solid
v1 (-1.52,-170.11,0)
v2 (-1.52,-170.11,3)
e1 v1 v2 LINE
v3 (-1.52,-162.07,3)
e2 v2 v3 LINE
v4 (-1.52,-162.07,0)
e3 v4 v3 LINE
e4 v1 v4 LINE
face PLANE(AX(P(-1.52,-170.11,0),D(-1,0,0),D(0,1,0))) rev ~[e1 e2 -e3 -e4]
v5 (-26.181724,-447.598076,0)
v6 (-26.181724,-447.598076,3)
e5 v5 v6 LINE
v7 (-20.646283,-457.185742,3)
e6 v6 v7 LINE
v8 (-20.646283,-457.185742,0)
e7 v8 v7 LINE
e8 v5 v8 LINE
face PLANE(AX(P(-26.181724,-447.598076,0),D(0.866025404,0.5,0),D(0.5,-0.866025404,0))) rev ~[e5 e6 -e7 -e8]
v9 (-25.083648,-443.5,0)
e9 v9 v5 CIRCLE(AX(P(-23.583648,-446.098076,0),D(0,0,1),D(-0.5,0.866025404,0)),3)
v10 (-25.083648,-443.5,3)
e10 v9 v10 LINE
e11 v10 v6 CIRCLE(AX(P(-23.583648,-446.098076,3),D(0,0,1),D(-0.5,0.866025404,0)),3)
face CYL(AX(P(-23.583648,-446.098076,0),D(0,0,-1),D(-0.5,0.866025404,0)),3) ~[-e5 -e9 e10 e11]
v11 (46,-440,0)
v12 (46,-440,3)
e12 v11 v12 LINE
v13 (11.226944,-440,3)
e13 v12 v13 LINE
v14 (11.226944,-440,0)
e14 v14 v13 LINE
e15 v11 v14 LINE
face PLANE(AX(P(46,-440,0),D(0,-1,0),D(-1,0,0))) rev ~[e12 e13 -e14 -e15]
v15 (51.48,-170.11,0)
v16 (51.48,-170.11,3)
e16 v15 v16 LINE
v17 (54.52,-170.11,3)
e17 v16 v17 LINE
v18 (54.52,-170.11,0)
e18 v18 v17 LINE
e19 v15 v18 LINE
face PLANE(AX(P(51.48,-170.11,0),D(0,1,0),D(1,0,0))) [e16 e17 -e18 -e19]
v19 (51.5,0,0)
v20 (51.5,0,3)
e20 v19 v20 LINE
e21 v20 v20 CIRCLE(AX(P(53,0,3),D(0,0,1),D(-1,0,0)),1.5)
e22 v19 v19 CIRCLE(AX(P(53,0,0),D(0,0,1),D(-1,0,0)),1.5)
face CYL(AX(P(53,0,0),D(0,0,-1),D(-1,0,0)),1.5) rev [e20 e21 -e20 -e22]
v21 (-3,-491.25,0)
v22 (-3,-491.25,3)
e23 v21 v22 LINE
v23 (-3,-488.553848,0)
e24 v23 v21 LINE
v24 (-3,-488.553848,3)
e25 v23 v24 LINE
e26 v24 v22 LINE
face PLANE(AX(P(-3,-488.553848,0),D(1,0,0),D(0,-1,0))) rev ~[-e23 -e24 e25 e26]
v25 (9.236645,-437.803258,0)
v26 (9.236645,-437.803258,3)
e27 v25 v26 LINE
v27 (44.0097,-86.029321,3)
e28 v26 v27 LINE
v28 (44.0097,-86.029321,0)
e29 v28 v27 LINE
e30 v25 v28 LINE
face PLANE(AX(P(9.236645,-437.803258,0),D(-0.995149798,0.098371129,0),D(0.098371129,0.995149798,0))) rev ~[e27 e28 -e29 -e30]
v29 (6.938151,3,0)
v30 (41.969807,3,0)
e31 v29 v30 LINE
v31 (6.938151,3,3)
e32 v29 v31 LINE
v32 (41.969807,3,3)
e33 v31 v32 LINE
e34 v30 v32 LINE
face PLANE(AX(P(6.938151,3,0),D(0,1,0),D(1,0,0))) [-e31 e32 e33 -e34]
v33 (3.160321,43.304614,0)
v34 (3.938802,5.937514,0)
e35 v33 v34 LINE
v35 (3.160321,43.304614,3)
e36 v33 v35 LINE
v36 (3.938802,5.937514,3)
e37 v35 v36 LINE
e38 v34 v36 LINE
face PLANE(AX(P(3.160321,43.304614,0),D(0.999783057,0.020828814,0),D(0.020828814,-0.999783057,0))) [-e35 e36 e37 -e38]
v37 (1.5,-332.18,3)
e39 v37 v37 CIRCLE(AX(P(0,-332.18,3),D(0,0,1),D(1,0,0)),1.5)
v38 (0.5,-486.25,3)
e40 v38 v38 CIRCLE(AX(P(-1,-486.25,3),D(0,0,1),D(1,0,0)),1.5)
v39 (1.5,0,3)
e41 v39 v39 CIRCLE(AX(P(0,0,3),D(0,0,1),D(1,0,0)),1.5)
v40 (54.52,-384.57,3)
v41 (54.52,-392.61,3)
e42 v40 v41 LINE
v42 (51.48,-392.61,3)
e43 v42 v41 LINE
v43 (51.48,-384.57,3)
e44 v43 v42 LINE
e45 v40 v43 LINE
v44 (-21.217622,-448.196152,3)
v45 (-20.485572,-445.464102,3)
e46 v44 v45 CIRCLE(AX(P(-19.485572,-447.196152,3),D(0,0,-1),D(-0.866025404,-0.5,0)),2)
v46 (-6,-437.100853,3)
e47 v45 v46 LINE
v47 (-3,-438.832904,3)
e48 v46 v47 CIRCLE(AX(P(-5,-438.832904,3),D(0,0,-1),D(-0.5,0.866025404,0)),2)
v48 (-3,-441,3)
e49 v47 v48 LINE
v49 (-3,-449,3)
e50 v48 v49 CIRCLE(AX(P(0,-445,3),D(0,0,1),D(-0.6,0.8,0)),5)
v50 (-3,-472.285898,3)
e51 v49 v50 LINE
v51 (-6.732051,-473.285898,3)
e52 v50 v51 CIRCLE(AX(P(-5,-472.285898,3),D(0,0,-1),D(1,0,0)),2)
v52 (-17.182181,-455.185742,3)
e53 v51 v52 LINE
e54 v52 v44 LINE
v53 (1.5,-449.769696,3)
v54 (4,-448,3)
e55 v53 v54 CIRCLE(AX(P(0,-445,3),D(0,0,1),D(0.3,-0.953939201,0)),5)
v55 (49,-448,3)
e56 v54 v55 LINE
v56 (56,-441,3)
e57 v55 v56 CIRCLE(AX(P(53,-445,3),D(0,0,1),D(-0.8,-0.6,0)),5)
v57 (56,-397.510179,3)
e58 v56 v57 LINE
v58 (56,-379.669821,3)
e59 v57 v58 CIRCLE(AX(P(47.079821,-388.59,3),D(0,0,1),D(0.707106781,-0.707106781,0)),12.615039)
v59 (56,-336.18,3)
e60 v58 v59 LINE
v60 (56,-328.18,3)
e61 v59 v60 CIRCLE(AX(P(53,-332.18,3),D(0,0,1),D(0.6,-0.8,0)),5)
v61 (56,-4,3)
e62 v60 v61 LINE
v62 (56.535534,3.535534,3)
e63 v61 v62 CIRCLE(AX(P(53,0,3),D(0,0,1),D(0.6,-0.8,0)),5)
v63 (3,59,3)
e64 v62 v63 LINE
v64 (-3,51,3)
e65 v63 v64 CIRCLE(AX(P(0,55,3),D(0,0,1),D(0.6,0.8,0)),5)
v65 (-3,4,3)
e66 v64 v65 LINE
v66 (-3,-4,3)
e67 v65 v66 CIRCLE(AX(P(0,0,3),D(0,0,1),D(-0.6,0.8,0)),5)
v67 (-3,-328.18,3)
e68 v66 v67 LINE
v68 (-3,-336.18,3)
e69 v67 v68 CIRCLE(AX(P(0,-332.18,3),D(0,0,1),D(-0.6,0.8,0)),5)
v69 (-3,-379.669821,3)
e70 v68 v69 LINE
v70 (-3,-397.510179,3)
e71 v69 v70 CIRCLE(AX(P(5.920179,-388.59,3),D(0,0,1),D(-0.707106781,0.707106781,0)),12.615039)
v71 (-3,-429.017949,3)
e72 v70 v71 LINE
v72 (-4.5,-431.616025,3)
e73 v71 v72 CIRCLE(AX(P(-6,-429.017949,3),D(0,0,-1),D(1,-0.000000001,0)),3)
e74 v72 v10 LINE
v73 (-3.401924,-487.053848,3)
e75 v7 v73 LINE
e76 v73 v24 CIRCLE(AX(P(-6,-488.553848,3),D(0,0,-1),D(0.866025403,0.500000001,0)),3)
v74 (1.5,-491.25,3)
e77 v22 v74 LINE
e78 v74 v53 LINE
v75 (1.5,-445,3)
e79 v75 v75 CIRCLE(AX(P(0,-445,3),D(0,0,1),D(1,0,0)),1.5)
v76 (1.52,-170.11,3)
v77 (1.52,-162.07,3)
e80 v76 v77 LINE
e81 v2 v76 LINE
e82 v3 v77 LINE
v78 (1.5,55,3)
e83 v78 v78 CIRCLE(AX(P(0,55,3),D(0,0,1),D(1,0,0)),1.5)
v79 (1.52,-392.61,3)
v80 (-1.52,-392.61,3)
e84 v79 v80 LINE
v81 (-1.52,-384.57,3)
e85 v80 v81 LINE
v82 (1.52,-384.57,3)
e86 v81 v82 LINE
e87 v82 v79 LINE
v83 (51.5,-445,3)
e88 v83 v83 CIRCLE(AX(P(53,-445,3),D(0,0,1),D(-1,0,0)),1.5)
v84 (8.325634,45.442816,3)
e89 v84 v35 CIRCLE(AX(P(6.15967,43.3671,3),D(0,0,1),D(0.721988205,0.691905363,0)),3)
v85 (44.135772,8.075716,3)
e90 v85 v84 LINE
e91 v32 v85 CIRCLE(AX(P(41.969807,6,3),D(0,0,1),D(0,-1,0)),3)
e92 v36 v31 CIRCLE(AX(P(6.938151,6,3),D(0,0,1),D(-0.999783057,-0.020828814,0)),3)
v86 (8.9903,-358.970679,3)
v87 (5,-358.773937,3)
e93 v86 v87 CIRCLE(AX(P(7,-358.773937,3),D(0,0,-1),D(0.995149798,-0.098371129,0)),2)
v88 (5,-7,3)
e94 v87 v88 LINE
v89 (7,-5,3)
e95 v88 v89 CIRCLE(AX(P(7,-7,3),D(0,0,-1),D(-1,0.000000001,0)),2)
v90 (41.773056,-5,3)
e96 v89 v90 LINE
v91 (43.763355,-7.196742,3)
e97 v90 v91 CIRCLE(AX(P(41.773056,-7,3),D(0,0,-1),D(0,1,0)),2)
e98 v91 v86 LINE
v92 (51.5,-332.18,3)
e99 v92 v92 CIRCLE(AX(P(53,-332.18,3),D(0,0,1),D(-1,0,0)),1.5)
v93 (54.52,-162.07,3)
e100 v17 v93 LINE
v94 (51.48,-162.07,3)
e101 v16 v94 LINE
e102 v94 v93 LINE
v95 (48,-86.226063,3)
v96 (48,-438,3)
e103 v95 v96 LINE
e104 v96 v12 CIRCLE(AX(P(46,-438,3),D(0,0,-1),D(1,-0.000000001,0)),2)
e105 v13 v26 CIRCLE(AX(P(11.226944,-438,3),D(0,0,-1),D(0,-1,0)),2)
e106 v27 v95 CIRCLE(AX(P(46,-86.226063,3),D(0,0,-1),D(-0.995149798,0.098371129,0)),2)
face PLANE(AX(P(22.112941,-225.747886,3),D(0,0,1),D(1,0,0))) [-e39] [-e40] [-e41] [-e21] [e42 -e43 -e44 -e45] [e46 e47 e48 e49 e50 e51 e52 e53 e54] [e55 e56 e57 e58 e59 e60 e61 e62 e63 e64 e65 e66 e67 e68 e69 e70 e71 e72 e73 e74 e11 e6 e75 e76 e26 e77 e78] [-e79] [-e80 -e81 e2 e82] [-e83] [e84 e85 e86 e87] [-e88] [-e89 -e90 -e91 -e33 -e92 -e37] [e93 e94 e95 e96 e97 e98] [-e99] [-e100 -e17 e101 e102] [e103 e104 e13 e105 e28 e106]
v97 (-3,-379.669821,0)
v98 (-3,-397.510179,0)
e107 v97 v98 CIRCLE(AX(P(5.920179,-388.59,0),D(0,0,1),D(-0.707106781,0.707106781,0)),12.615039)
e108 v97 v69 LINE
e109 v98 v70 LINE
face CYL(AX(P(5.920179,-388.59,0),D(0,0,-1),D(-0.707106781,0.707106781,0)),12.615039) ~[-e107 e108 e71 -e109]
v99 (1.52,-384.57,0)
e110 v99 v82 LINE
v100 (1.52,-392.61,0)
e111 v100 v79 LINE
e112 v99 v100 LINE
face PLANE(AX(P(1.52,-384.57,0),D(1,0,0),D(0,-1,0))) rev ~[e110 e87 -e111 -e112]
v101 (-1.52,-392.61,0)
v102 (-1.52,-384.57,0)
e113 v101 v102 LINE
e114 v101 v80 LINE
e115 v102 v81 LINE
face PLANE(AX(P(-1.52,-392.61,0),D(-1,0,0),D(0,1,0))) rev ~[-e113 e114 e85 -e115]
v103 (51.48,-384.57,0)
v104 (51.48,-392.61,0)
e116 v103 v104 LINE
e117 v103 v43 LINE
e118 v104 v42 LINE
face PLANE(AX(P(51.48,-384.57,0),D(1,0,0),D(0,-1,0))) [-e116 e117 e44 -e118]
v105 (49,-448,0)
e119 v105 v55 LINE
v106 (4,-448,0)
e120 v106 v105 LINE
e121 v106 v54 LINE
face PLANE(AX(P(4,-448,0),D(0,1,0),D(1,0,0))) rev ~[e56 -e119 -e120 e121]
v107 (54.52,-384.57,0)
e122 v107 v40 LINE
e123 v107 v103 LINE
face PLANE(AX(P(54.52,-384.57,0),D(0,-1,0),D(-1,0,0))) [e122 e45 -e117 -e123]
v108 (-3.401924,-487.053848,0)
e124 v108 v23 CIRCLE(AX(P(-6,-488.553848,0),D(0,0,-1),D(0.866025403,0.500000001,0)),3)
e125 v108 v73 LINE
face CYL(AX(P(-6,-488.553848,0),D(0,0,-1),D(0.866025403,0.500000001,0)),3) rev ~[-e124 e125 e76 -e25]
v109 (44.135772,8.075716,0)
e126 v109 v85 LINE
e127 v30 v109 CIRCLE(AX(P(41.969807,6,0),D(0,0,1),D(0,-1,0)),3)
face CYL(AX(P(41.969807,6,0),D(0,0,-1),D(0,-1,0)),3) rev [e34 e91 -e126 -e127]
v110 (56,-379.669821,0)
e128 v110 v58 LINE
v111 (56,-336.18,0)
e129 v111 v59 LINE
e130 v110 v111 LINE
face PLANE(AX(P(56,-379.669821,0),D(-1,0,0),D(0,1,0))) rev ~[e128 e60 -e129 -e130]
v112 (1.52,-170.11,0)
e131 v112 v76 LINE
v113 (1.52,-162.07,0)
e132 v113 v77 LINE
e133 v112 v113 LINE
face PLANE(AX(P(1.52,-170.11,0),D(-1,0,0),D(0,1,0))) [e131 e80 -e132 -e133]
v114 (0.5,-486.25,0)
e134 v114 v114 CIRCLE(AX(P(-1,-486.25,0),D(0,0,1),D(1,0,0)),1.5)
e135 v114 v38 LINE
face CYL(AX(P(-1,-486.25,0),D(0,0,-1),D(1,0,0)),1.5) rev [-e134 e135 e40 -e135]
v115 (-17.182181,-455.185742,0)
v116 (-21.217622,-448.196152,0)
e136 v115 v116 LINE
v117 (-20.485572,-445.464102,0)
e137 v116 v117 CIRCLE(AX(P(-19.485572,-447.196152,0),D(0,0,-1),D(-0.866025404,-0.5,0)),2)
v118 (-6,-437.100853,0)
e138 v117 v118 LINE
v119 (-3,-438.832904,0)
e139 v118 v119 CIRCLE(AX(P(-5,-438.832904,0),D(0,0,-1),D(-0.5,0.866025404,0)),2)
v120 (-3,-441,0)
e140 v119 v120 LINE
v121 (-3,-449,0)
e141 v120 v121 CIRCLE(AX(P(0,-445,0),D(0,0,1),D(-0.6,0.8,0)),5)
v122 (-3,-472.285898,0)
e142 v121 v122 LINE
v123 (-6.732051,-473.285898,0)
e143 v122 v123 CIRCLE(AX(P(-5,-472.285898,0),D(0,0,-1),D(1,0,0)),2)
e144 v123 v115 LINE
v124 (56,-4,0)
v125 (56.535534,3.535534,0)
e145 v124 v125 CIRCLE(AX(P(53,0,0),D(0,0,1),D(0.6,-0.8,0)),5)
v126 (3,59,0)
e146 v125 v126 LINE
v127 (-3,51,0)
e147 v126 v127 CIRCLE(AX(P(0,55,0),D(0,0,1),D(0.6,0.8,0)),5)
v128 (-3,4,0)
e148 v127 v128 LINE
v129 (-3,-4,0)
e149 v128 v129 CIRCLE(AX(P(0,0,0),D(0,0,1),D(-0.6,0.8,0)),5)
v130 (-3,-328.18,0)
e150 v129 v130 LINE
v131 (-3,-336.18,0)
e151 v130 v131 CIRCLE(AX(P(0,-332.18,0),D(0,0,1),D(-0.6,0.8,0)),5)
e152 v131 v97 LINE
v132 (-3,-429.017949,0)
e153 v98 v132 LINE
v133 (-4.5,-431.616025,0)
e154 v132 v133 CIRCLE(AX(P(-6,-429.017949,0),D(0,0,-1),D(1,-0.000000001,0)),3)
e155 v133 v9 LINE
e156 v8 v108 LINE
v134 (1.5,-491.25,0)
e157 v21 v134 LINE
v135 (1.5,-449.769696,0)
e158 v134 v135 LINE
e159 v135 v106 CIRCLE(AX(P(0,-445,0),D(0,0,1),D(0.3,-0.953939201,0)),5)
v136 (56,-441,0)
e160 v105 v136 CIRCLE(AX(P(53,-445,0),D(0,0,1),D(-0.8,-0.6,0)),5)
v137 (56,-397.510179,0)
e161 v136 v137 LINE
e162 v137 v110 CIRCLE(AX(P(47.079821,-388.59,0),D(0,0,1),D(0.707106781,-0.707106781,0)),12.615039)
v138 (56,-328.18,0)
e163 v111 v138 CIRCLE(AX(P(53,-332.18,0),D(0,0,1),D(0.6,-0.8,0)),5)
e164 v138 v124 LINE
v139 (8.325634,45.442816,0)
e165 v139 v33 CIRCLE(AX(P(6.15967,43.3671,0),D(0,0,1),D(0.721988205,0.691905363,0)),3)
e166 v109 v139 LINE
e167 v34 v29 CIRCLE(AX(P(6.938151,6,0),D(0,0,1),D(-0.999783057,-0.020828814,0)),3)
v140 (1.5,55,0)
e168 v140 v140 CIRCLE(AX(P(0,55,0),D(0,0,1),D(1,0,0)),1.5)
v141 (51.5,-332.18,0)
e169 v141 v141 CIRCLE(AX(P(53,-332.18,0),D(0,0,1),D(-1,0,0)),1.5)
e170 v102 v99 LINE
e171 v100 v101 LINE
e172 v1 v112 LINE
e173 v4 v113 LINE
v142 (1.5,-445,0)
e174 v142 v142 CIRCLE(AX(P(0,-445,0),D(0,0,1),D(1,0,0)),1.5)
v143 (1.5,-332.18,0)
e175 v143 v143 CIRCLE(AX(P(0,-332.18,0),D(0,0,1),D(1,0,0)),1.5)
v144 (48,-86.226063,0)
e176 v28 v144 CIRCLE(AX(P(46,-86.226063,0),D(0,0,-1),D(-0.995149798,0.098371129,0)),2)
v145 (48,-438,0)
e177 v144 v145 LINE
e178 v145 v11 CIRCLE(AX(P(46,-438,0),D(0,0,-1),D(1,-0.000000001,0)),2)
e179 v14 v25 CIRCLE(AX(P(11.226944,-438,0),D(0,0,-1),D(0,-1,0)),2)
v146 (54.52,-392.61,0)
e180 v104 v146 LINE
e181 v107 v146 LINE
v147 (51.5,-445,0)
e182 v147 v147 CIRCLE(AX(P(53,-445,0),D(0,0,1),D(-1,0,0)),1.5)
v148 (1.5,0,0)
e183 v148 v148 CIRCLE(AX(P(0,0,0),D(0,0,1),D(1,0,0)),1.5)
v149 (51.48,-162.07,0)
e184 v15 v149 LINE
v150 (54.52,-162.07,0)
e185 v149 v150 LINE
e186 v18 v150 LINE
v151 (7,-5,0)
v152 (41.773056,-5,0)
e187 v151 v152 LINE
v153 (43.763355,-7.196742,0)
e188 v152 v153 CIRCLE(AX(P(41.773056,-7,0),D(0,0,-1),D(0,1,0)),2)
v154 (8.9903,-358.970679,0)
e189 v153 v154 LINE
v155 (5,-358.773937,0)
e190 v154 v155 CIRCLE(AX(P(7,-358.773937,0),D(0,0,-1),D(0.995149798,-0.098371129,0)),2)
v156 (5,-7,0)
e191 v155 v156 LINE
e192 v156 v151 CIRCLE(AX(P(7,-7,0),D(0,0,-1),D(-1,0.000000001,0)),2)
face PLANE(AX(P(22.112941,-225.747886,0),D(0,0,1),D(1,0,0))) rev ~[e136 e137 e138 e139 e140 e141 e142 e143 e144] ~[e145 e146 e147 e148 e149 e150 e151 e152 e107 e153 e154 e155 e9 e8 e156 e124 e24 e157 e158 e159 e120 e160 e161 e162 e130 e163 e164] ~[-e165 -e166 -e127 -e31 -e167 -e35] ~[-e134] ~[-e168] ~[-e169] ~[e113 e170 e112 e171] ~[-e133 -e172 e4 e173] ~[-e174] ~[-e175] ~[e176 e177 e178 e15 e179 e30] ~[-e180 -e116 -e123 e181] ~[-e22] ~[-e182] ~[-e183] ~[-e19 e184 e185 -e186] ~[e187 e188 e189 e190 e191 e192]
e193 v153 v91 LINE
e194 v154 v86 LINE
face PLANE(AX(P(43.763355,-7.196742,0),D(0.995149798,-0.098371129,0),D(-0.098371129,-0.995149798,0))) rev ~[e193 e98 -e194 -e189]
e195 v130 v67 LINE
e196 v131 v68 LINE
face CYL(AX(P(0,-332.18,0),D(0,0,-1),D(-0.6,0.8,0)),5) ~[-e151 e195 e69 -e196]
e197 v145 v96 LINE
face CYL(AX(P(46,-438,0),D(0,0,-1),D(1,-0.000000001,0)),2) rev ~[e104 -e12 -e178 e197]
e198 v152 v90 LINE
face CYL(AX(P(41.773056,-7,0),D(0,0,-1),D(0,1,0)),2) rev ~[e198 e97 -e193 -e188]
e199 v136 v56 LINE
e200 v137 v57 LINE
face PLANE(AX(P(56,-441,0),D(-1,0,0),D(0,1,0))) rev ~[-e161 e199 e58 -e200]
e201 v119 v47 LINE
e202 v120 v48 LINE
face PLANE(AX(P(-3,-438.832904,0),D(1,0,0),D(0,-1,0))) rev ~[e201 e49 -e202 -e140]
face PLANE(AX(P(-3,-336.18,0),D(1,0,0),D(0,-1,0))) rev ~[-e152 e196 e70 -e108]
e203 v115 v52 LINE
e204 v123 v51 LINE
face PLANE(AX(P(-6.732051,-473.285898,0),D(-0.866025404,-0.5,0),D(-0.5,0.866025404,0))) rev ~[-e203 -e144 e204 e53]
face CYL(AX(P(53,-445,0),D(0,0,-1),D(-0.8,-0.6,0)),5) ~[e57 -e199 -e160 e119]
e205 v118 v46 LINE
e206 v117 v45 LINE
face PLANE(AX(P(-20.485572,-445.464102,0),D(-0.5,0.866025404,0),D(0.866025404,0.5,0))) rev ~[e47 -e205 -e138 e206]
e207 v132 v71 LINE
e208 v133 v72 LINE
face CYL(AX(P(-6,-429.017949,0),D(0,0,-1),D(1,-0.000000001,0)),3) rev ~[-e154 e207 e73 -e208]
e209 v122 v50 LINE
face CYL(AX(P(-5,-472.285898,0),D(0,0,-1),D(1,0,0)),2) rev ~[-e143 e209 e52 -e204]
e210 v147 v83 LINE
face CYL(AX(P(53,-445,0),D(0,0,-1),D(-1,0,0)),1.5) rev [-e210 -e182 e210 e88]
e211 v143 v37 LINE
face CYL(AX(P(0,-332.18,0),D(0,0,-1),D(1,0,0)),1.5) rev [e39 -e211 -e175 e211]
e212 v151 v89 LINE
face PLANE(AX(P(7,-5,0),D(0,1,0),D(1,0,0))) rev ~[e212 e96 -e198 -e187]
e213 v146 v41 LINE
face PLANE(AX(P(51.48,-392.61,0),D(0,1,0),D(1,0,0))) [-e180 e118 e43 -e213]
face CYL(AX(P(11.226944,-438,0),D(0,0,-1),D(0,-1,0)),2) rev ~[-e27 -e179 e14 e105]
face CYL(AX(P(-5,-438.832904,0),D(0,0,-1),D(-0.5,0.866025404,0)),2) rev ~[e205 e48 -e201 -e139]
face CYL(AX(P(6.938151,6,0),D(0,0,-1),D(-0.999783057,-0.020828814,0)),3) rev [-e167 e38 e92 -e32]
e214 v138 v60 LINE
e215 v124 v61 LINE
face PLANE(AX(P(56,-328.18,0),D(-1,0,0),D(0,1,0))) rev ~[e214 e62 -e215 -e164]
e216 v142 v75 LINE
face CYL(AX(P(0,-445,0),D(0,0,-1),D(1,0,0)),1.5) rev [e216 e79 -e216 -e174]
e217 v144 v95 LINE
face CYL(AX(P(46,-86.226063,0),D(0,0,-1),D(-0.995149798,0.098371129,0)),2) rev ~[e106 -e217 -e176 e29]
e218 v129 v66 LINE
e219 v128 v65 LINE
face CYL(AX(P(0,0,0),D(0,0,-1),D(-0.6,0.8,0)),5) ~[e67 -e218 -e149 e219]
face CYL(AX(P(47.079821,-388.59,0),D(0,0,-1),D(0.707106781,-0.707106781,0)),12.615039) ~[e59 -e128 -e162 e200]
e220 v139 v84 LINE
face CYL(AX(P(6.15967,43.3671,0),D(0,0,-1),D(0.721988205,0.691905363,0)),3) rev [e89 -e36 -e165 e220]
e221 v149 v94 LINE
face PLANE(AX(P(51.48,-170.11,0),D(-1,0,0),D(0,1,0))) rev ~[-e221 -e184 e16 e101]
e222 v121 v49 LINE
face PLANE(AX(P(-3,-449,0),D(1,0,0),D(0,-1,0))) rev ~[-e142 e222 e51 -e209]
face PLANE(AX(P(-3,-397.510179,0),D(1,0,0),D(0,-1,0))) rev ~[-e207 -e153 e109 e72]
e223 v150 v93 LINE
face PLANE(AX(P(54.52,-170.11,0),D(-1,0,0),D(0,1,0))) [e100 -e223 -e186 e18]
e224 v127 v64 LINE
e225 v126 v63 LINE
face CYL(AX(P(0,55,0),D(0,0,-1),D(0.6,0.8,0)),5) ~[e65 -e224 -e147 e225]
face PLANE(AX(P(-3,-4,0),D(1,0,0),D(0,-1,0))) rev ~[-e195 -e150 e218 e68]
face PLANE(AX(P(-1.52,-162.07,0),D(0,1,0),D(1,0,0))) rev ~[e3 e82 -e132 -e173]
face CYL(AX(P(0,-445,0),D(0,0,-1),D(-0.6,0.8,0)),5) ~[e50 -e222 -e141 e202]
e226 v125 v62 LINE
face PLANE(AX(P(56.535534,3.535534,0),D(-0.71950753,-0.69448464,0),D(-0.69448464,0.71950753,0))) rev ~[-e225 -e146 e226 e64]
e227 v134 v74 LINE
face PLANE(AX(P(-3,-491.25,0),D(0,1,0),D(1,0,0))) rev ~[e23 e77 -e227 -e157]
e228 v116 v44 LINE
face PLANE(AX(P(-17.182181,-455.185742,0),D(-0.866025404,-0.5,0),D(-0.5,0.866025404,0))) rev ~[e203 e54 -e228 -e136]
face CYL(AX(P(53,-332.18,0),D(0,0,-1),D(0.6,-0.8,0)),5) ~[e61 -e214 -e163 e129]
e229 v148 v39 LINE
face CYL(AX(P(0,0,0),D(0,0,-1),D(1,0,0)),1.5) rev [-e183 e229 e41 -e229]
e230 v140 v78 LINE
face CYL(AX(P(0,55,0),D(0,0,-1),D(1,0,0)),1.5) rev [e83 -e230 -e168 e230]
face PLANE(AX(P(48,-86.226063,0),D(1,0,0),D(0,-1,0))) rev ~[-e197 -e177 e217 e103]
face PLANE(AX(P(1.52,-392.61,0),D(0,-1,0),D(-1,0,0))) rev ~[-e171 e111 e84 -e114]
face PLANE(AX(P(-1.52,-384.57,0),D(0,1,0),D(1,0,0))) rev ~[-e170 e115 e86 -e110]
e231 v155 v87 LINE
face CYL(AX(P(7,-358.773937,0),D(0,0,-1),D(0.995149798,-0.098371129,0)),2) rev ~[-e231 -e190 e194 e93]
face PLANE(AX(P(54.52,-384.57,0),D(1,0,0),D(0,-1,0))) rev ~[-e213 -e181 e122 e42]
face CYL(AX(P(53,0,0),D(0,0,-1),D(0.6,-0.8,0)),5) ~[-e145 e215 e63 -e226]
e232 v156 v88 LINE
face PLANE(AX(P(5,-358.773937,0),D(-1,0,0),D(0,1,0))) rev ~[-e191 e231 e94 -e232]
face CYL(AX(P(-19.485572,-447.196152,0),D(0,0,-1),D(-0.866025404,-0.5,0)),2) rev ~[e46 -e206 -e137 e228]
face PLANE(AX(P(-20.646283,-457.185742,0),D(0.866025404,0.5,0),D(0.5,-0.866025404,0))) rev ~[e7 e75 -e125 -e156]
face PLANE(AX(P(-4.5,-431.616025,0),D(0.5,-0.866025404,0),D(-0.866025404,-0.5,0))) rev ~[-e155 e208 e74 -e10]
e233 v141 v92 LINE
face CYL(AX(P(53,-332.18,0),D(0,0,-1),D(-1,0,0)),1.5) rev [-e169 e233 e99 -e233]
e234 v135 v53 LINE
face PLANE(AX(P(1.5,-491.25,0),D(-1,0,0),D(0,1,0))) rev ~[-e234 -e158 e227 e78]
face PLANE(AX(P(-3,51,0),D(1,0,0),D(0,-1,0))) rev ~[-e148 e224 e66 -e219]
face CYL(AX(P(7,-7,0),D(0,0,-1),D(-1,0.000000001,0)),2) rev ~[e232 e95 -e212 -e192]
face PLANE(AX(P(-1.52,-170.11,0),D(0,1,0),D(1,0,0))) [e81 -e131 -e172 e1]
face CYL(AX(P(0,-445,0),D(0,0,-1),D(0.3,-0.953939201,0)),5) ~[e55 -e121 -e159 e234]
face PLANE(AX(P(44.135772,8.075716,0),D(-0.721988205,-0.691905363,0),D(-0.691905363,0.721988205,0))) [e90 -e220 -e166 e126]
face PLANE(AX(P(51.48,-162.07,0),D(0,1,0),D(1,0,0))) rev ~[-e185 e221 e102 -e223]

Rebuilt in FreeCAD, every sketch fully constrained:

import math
import FreeCAD as App
import Part
import Sketcher

V = App.Vector


def add_polygon(sketch, points):
    """Adds a closed chain of lines whose ends are joined by coincident constraints."""
    first, n = sketch.GeometryCount, len(points)
    for a, b in zip(points, points[1:] + points[:1]):
        sketch.addGeometry(Part.LineSegment(App.Vector(*a, 0), App.Vector(*b, 0)), False)
    for i in range(n):
        sketch.addConstraint(Sketcher.Constraint("Coincident", first + i, 2, first + (i + 1) % n, 1))

doc = App.newDocument("Part")
params = doc.addObject("Spreadsheet::Sheet", "Params")
for row, (alias, value) in enumerate([
    ("sketch1_diameter", "3 mm"),
    ("sketch1_diameter2", "3 mm"),
    ("sketch1_diameter3", "3 mm"),
    ("sketch1_diameter4", "3 mm"),
    ("sketch1_diameter5", "3 mm"),
    ("pad1_length", "3 mm"),
], start=1):
    params.set(f"A{row}", alias)
    params.set(f"B{row}", "=" + value)
    params.setAlias(f"B{row}", alias)

body = doc.addObject("PartDesign::Body", "Body")

sketch1 = doc.addObject("Sketcher::SketchObject", "Sketch")
body.addObject(sketch1)
sketch1.AttachmentSupport = (doc.XY_Plane, [""])
sketch1.MapMode = "FlatFace"
sketch1.addGeometry(Part.LineSegment(V(-3, -4, 0), V(-3, -328.18, 0)), False)
sketch1.addGeometry(Part.ArcOfCircle(Part.Circle(V(0, -332.18, 0), V(0, 0, 1), 5), math.radians(126.869898), math.radians(233.130102)), False)
sketch1.addGeometry(Part.LineSegment(V(-3, -336.18, 0), V(-3, -379.669821, 0)), False)
sketch1.addGeometry(Part.ArcOfCircle(Part.Circle(V(5.920179, -388.59, 0), V(0, 0, 1), 12.615039), math.radians(135), math.radians(225)), False)
sketch1.addGeometry(Part.LineSegment(V(-3, -397.510179, 0), V(-3, -429.017949, 0)), False)
sketch1.addGeometry(Part.ArcOfCircle(Part.Circle(V(-6, -429.017949, 0), V(0, 0, 1), 3), math.radians(-60), math.radians(0)), False)
sketch1.addGeometry(Part.LineSegment(V(-4.5, -431.616025, 0), V(-25.083648, -443.5, 0)), False)
sketch1.addGeometry(Part.ArcOfCircle(Part.Circle(V(-23.583648, -446.098076, 0), V(0, 0, 1), 3), math.radians(120), math.radians(210)), False)
sketch1.addGeometry(Part.LineSegment(V(-26.181724, -447.598076, 0), V(-20.646283, -457.185742, 0)), False)
sketch1.addGeometry(Part.LineSegment(V(-20.646283, -457.185742, 0), V(-3.401924, -487.053848, 0)), False)
sketch1.addGeometry(Part.ArcOfCircle(Part.Circle(V(-6, -488.553848, 0), V(0, 0, 1), 3), math.radians(0), math.radians(30)), False)
sketch1.addGeometry(Part.LineSegment(V(-3, -488.553848, 0), V(-3, -491.25, 0)), False)
sketch1.addGeometry(Part.LineSegment(V(-3, -491.25, 0), V(1.5, -491.25, 0)), False)
sketch1.addGeometry(Part.LineSegment(V(1.5, -491.25, 0), V(1.5, -449.769696, 0)), False)
sketch1.addGeometry(Part.ArcOfCircle(Part.Circle(V(0, -445, 0), V(0, 0, 1), 5), math.radians(-72.542397), math.radians(-36.869898)), False)
sketch1.addGeometry(Part.LineSegment(V(4, -448, 0), V(49, -448, 0)), False)
sketch1.addGeometry(Part.ArcOfCircle(Part.Circle(V(53, -445, 0), V(0, 0, 1), 5), math.radians(-143.130102), math.radians(53.130102)), False)
sketch1.addGeometry(Part.LineSegment(V(56, -441, 0), V(56, -397.510179, 0)), False)
sketch1.addGeometry(Part.ArcOfCircle(Part.Circle(V(47.079821, -388.59, 0), V(0, 0, 1), 12.615039), math.radians(-45), math.radians(45)), False)
sketch1.addGeometry(Part.LineSegment(V(56, -379.669821, 0), V(56, -336.18, 0)), False)
sketch1.addGeometry(Part.ArcOfCircle(Part.Circle(V(53, -332.18, 0), V(0, 0, 1), 5), math.radians(-53.130102), math.radians(53.130102)), False)
sketch1.addGeometry(Part.LineSegment(V(56, -328.18, 0), V(56, -4, 0)), False)
sketch1.addGeometry(Part.ArcOfCircle(Part.Circle(V(53, 0, 0), V(0, 0, 1), 5), math.radians(-53.130102), math.radians(45)), False)
sketch1.addGeometry(Part.LineSegment(V(56.535534, 3.535534, 0), V(3, 59, 0)), False)
sketch1.addGeometry(Part.ArcOfCircle(Part.Circle(V(0, 55, 0), V(0, 0, 1), 5), math.radians(53.130102), math.radians(233.130102)), False)
sketch1.addGeometry(Part.LineSegment(V(-3, 51, 0), V(-3, 4, 0)), False)
sketch1.addGeometry(Part.ArcOfCircle(Part.Circle(V(0, 0, 0), V(0, 0, 1), 5), math.radians(126.869898), math.radians(233.130102)), False)
sketch1.addGeometry(Part.LineSegment(V(-6.732051, -473.285898, 0), V(-17.182181, -455.185742, 0)), False)
sketch1.addGeometry(Part.LineSegment(V(-17.182181, -455.185742, 0), V(-21.217622, -448.196152, 0)), False)
sketch1.addGeometry(Part.ArcOfCircle(Part.Circle(V(-19.485572, -447.196152, 0), V(0, 0, 1), 2), math.radians(120), math.radians(210)), False)
sketch1.addGeometry(Part.LineSegment(V(-20.485572, -445.464102, 0), V(-6, -437.100853, 0)), False)
sketch1.addGeometry(Part.ArcOfCircle(Part.Circle(V(-5, -438.832904, 0), V(0, 0, 1), 2), math.radians(0), math.radians(120)), False)
sketch1.addGeometry(Part.LineSegment(V(-3, -438.832904, 0), V(-3, -441, 0)), False)
sketch1.addGeometry(Part.ArcOfCircle(Part.Circle(V(0, -445, 0), V(0, 0, 1), 5), math.radians(126.869898), math.radians(233.130102)), False)
sketch1.addGeometry(Part.LineSegment(V(-3, -449, 0), V(-3, -472.285898, 0)), False)
sketch1.addGeometry(Part.ArcOfCircle(Part.Circle(V(-5, -472.285898, 0), V(0, 0, 1), 2), math.radians(-150), math.radians(0)), False)
sketch1.addGeometry(Part.Circle(V(-1, -486.25, 0), V(0, 0, 1), 1.5), False)
sketch1.addGeometry(Part.Circle(V(0, -445, 0), V(0, 0, 1), 1.5), False)
add_polygon(sketch1, [(-1.52, -392.61), (-1.52, -384.57), (1.52, -384.57), (1.52, -392.61)])
sketch1.addGeometry(Part.Circle(V(0, -332.18, 0), V(0, 0, 1), 1.5), False)
sketch1.addGeometry(Part.Circle(V(53, -445, 0), V(0, 0, 1), 1.5), False)
add_polygon(sketch1, [(54.52, -384.57), (54.52, -392.61), (51.48, -392.61), (51.48, -384.57)])
sketch1.addGeometry(Part.ArcOfCircle(Part.Circle(V(46, -86.226063, 0), V(0, 0, 1), 2), math.radians(0), math.radians(174.354619)), False)
sketch1.addGeometry(Part.LineSegment(V(48, -86.226063, 0), V(48, -438, 0)), False)
sketch1.addGeometry(Part.ArcOfCircle(Part.Circle(V(46, -438, 0), V(0, 0, 1), 2), math.radians(-90), math.radians(0)), False)
sketch1.addGeometry(Part.LineSegment(V(46, -440, 0), V(11.226944, -440, 0)), False)
sketch1.addGeometry(Part.ArcOfCircle(Part.Circle(V(11.226944, -438, 0), V(0, 0, 1), 2), math.radians(174.354619), math.radians(270)), False)
sketch1.addGeometry(Part.LineSegment(V(9.236645, -437.803258, 0), V(44.0097, -86.029321, 0)), False)
sketch1.addGeometry(Part.Circle(V(53, -332.18, 0), V(0, 0, 1), 1.5), False)
add_polygon(sketch1, [(1.52, -170.11), (-1.52, -170.11), (-1.52, -162.07), (1.52, -162.07)])
sketch1.addGeometry(Part.Circle(V(0, 0, 0), V(0, 0, 1), 1.5), False)
sketch1.addGeometry(Part.Circle(V(0, 55, 0), V(0, 0, 1), 1.5), False)
sketch1.addGeometry(Part.ArcOfCircle(Part.Circle(V(41.773056, -7, 0), V(0, 0, 1), 2), math.radians(-5.645381), math.radians(90)), False)
sketch1.addGeometry(Part.LineSegment(V(43.763355, -7.196742, 0), V(8.9903, -358.970679, 0)), False)
sketch1.addGeometry(Part.ArcOfCircle(Part.Circle(V(7, -358.773937, 0), V(0, 0, 1), 2), math.radians(180), math.radians(354.354619)), False)
sketch1.addGeometry(Part.LineSegment(V(5, -358.773937, 0), V(5, -7, 0)), False)
sketch1.addGeometry(Part.ArcOfCircle(Part.Circle(V(7, -7, 0), V(0, 0, 1), 2), math.radians(90), math.radians(180)), False)
sketch1.addGeometry(Part.LineSegment(V(7, -5, 0), V(41.773056, -5, 0)), False)
add_polygon(sketch1, [(54.52, -170.11), (51.48, -170.11), (51.48, -162.07), (54.52, -162.07)])
sketch1.addGeometry(Part.LineSegment(V(41.969807, 3, 0), V(6.938151, 3, 0)), False)
sketch1.addGeometry(Part.ArcOfCircle(Part.Circle(V(6.938151, 6, 0), V(0, 0, 1), 3), math.radians(-178.806511), math.radians(-90)), False)
sketch1.addGeometry(Part.LineSegment(V(3.938802, 5.937514, 0), V(3.160321, 43.304614, 0)), False)
sketch1.addGeometry(Part.ArcOfCircle(Part.Circle(V(6.15967, 43.3671, 0), V(0, 0, 1), 3), math.radians(43.781125), math.radians(181.193489)), False)
sketch1.addGeometry(Part.LineSegment(V(8.325634, 45.442816, 0), V(44.135772, 8.075716, 0)), False)
sketch1.addGeometry(Part.ArcOfCircle(Part.Circle(V(41.969807, 6, 0), V(0, 0, 1), 3), math.radians(-90), math.radians(43.781125)), False)
sketch1.addGeometry(Part.Circle(V(53, 0, 0), V(0, 0, 1), 1.5), False)
sketch1.addConstraint(Sketcher.Constraint("Coincident", 0, 2, 1, 1))
sketch1.addConstraint(Sketcher.Constraint("Coincident", 1, 2, 2, 1))
sketch1.addConstraint(Sketcher.Constraint("Coincident", 2, 2, 3, 1))
sketch1.addConstraint(Sketcher.Constraint("Coincident", 3, 2, 4, 1))
sketch1.addConstraint(Sketcher.Constraint("Coincident", 4, 2, 5, 2))
sketch1.addConstraint(Sketcher.Constraint("Coincident", 5, 1, 6, 1))
sketch1.addConstraint(Sketcher.Constraint("Coincident", 6, 2, 7, 1))
sketch1.addConstraint(Sketcher.Constraint("Coincident", 7, 2, 8, 1))
sketch1.addConstraint(Sketcher.Constraint("Coincident", 8, 2, 9, 1))
sketch1.addConstraint(Sketcher.Constraint("Coincident", 9, 2, 10, 2))
sketch1.addConstraint(Sketcher.Constraint("Coincident", 10, 1, 11, 1))
sketch1.addConstraint(Sketcher.Constraint("Coincident", 11, 2, 12, 1))
sketch1.addConstraint(Sketcher.Constraint("Coincident", 12, 2, 13, 1))
sketch1.addConstraint(Sketcher.Constraint("Coincident", 13, 2, 14, 1))
sketch1.addConstraint(Sketcher.Constraint("Coincident", 14, 2, 15, 1))
sketch1.addConstraint(Sketcher.Constraint("Coincident", 15, 2, 16, 1))
sketch1.addConstraint(Sketcher.Constraint("Coincident", 16, 2, 17, 1))
sketch1.addConstraint(Sketcher.Constraint("Coincident", 17, 2, 18, 1))
sketch1.addConstraint(Sketcher.Constraint("Coincident", 18, 2, 19, 1))
sketch1.addConstraint(Sketcher.Constraint("Coincident", 19, 2, 20, 1))
sketch1.addConstraint(Sketcher.Constraint("Coincident", 20, 2, 21, 1))
sketch1.addConstraint(Sketcher.Constraint("Coincident", 21, 2, 22, 1))
sketch1.addConstraint(Sketcher.Constraint("Coincident", 22, 2, 23, 1))
sketch1.addConstraint(Sketcher.Constraint("Coincident", 23, 2, 24, 1))
sketch1.addConstraint(Sketcher.Constraint("Coincident", 24, 2, 25, 1))
sketch1.addConstraint(Sketcher.Constraint("Coincident", 25, 2, 26, 1))
sketch1.addConstraint(Sketcher.Constraint("Coincident", 26, 2, 0, 1))
sketch1.addConstraint(Sketcher.Constraint("Coincident", 27, 2, 28, 1))
sketch1.addConstraint(Sketcher.Constraint("Coincident", 28, 2, 29, 2))
sketch1.addConstraint(Sketcher.Constraint("Coincident", 29, 1, 30, 1))
sketch1.addConstraint(Sketcher.Constraint("Coincident", 30, 2, 31, 2))
sketch1.addConstraint(Sketcher.Constraint("Coincident", 31, 1, 32, 1))
sketch1.addConstraint(Sketcher.Constraint("Coincident", 32, 2, 33, 1))
sketch1.addConstraint(Sketcher.Constraint("Coincident", 33, 2, 34, 1))
sketch1.addConstraint(Sketcher.Constraint("Coincident", 34, 2, 35, 2))
sketch1.addConstraint(Sketcher.Constraint("Coincident", 35, 1, 27, 1))
sketch1.addConstraint(Sketcher.Constraint("Coincident", 48, 1, 49, 1))
sketch1.addConstraint(Sketcher.Constraint("Coincident", 49, 2, 50, 2))
sketch1.addConstraint(Sketcher.Constraint("Coincident", 50, 1, 51, 1))
sketch1.addConstraint(Sketcher.Constraint("Coincident", 51, 2, 52, 2))
sketch1.addConstraint(Sketcher.Constraint("Coincident", 52, 1, 53, 1))
sketch1.addConstraint(Sketcher.Constraint("Coincident", 53, 2, 48, 2))
sketch1.addConstraint(Sketcher.Constraint("Coincident", 61, 1, 62, 1))
sketch1.addConstraint(Sketcher.Constraint("Coincident", 62, 2, 63, 2))
sketch1.addConstraint(Sketcher.Constraint("Coincident", 63, 1, 64, 1))
sketch1.addConstraint(Sketcher.Constraint("Coincident", 64, 2, 65, 2))
sketch1.addConstraint(Sketcher.Constraint("Coincident", 65, 1, 66, 1))
sketch1.addConstraint(Sketcher.Constraint("Coincident", 66, 2, 61, 2))
sketch1.addConstraint(Sketcher.Constraint("Coincident", 71, 2, 72, 2))
sketch1.addConstraint(Sketcher.Constraint("Coincident", 72, 1, 73, 1))
sketch1.addConstraint(Sketcher.Constraint("Coincident", 73, 2, 74, 2))
sketch1.addConstraint(Sketcher.Constraint("Coincident", 74, 1, 75, 1))
sketch1.addConstraint(Sketcher.Constraint("Coincident", 75, 2, 76, 2))
sketch1.addConstraint(Sketcher.Constraint("Coincident", 76, 1, 71, 1))
sketch1.addConstraint(Sketcher.Constraint("Vertical", 0))
sketch1.addConstraint(Sketcher.Constraint("Vertical", 2))
sketch1.addConstraint(Sketcher.Constraint("Vertical", 4))
sketch1.addConstraint(Sketcher.Constraint("Vertical", 11))
sketch1.addConstraint(Sketcher.Constraint("Horizontal", 12))
sketch1.addConstraint(Sketcher.Constraint("Vertical", 13))
sketch1.addConstraint(Sketcher.Constraint("Horizontal", 15))
sketch1.addConstraint(Sketcher.Constraint("Vertical", 17))
sketch1.addConstraint(Sketcher.Constraint("Vertical", 19))
sketch1.addConstraint(Sketcher.Constraint("Vertical", 21))
sketch1.addConstraint(Sketcher.Constraint("Vertical", 25))
sketch1.addConstraint(Sketcher.Constraint("Vertical", 32))
sketch1.addConstraint(Sketcher.Constraint("Vertical", 34))
sketch1.addConstraint(Sketcher.Constraint("Vertical", 38))
sketch1.addConstraint(Sketcher.Constraint("Horizontal", 39))
sketch1.addConstraint(Sketcher.Constraint("Vertical", 40))
sketch1.addConstraint(Sketcher.Constraint("Horizontal", 41))
sketch1.addConstraint(Sketcher.Constraint("Vertical", 44))
sketch1.addConstraint(Sketcher.Constraint("Horizontal", 45))
sketch1.addConstraint(Sketcher.Constraint("Vertical", 46))
sketch1.addConstraint(Sketcher.Constraint("Horizontal", 47))
sketch1.addConstraint(Sketcher.Constraint("Vertical", 49))
sketch1.addConstraint(Sketcher.Constraint("Horizontal", 51))
sketch1.addConstraint(Sketcher.Constraint("Horizontal", 55))
sketch1.addConstraint(Sketcher.Constraint("Vertical", 56))
sketch1.addConstraint(Sketcher.Constraint("Horizontal", 57))
sketch1.addConstraint(Sketcher.Constraint("Vertical", 58))
sketch1.addConstraint(Sketcher.Constraint("Vertical", 64))
sketch1.addConstraint(Sketcher.Constraint("Horizontal", 66))
sketch1.addConstraint(Sketcher.Constraint("Horizontal", 67))
sketch1.addConstraint(Sketcher.Constraint("Vertical", 68))
sketch1.addConstraint(Sketcher.Constraint("Horizontal", 69))
sketch1.addConstraint(Sketcher.Constraint("Vertical", 70))
sketch1.addConstraint(Sketcher.Constraint("Horizontal", 71))
sketch1.addConstraint(Sketcher.Constraint("Coincident", 26, 3, -1, 1))
sketch1.addConstraint(Sketcher.Constraint("Coincident", 59, 3, -1, 1))
sketch1.addConstraint(Sketcher.Constraint("Coincident", 33, 3, 14, 3))
sketch1.addConstraint(Sketcher.Constraint("Coincident", 37, 3, 14, 3))
sketch1.addConstraint(Sketcher.Constraint("Coincident", 42, 3, 1, 3))
sketch1.addConstraint(Sketcher.Constraint("Coincident", 43, 3, 16, 3))
sketch1.addConstraint(Sketcher.Constraint("Coincident", 54, 3, 20, 3))
sketch1.addConstraint(Sketcher.Constraint("Coincident", 60, 3, 24, 3))
sketch1.addConstraint(Sketcher.Constraint("Coincident", 77, 3, 22, 3))
sketch1.addConstraint(Sketcher.Constraint("PointOnObject", 1, 3, -2))
sketch1.addConstraint(Sketcher.Constraint("PointOnObject", 14, 3, -2))
sketch1.addConstraint(Sketcher.Constraint("PointOnObject", 22, 3, -1))
sketch1.addConstraint(Sketcher.Constraint("PointOnObject", 24, 3, -2))
sketch1.addConstraint(Sketcher.Constraint("Diameter", 36, 3.0))
sketch1.addConstraint(Sketcher.Constraint("Diameter", 37, 3.0))
sketch1.addConstraint(Sketcher.Constraint("Diameter", 42, 3.0))
sketch1.addConstraint(Sketcher.Constraint("Diameter", 43, 3.0))
sketch1.addConstraint(Sketcher.Constraint("Diameter", 54, 3.0))
sketch1.addConstraint(Sketcher.Constraint("Diameter", 59, 3.0))
sketch1.addConstraint(Sketcher.Constraint("Diameter", 60, 3.0))
sketch1.addConstraint(Sketcher.Constraint("Diameter", 77, 3.0))
sketch1.addConstraint(Sketcher.Constraint("Radius", 1, 5.0))
sketch1.addConstraint(Sketcher.Constraint("Radius", 5, 3.0))
sketch1.addConstraint(Sketcher.Constraint("Radius", 7, 3.0))
sketch1.addConstraint(Sketcher.Constraint("Radius", 10, 3.0))
sketch1.addConstraint(Sketcher.Constraint("Radius", 14, 5.0))
sketch1.addConstraint(Sketcher.Constraint("Radius", 16, 5.0))
sketch1.addConstraint(Sketcher.Constraint("Radius", 20, 5.0))
sketch1.addConstraint(Sketcher.Constraint("Radius", 22, 5.0))
sketch1.addConstraint(Sketcher.Constraint("Radius", 24, 5.0))
sketch1.addConstraint(Sketcher.Constraint("Radius", 26, 5.0))
sketch1.addConstraint(Sketcher.Constraint("Radius", 29, 2.0))
sketch1.addConstraint(Sketcher.Constraint("Radius", 31, 2.0))
sketch1.addConstraint(Sketcher.Constraint("Radius", 33, 5.0))
sketch1.addConstraint(Sketcher.Constraint("Radius", 35, 2.0))
sketch1.addConstraint(Sketcher.Constraint("Radius", 48, 2.0))
sketch1.addConstraint(Sketcher.Constraint("Radius", 50, 2.0))
sketch1.addConstraint(Sketcher.Constraint("Radius", 52, 2.0))
sketch1.addConstraint(Sketcher.Constraint("Radius", 61, 2.0))
sketch1.addConstraint(Sketcher.Constraint("Radius", 63, 2.0))
sketch1.addConstraint(Sketcher.Constraint("Radius", 65, 2.0))
sketch1.addConstraint(Sketcher.Constraint("Radius", 72, 3.0))
sketch1.addConstraint(Sketcher.Constraint("Radius", 74, 3.0))
sketch1.addConstraint(Sketcher.Constraint("Radius", 76, 3.0))
sketch1.addConstraint(Sketcher.Constraint("DistanceX", 15, 1, 15, 2, 45.0))
sketch1.addConstraint(Sketcher.Constraint("DistanceY", 25, 2, 25, 1, 47.0))
sketch1.addConstraint(Sketcher.Constraint("DistanceX", 12, 1, 12, 2, 4.5))
sketch1.addConstraint(Sketcher.Constraint("DistanceX", 5, 3, -1, 1, 6.0))
sketch1.addConstraint(Sketcher.Constraint("DistanceX", 10, 3, -1, 1, 6.0))
sketch1.addConstraint(Sketcher.Constraint("DistanceY", 14, 3, -1, 1, 445.0))
sketch1.addConstraint(Sketcher.Constraint("DistanceX", -1, 1, 16, 3, 53.0))
sketch1.addConstraint(Sketcher.Constraint("DistanceY", 16, 3, -1, 1, 445.0))
sketch1.addConstraint(Sketcher.Constraint("DistanceX", -1, 1, 20, 3, 53.0))
sketch1.addConstraint(Sketcher.Constraint("DistanceX", -1, 1, 22, 3, 53.0))
sketch1.addConstraint(Sketcher.Constraint("DistanceY", -1, 1, 24, 3, 55.0))
sketch1.addConstraint(Sketcher.Constraint("DistanceX", 31, 3, -1, 1, 5.0))
sketch1.addConstraint(Sketcher.Constraint("DistanceX", 35, 3, -1, 1, 5.0))
sketch1.addConstraint(Sketcher.Constraint("DistanceX", 36, 3, -1, 1, 1.0))
sketch1.addConstraint(Sketcher.Constraint("DistanceX", -1, 1, 48, 3, 46.0))
sketch1.addConstraint(Sketcher.Constraint("DistanceY", 50, 3, -1, 1, 438.0))
sketch1.addConstraint(Sketcher.Constraint("DistanceY", 61, 3, -1, 1, 7.0))
sketch1.addConstraint(Sketcher.Constraint("DistanceX", -1, 1, 63, 3, 7.0))
sketch1.addConstraint(Sketcher.Constraint("DistanceY", -1, 1, 72, 3, 6.0))
sketch1.addConstraint(Sketcher.Constraint("DistanceX", 0, 2, -1, 1, 3.0))
sketch1.addConstraint(Sketcher.Constraint("DistanceX", 1, 2, -1, 1, 3.0))
sketch1.addConstraint(Sketcher.Constraint("DistanceX", -1, 1, 16, 2, 56.0))
sketch1.addConstraint(Sketcher.Constraint("DistanceX", -1, 1, 18, 2, 56.0))
sketch1.addConstraint(Sketcher.Constraint("DistanceX", -1, 1, 20, 2, 56.0))
sketch1.addConstraint(Sketcher.Constraint("DistanceX", -1, 1, 23, 2, 3.0))
sketch1.addConstraint(Sketcher.Constraint("DistanceX", 30, 2, -1, 1, 6.0))
sketch1.addConstraint(Sketcher.Constraint("DistanceY", 49, 2, -1, 1, 438.0))
sketch1.addConstraint(Sketcher.Constraint("DistanceX", -1, 1, 50, 1, 46.0))
sketch1.addConstraint(Sketcher.Constraint("DistanceY", 64, 2, -1, 1, 7.0))
sketch1.addConstraint(Sketcher.Constraint("DistanceX", -1, 1, 65, 1, 7.0))
sketch1.addConstraint(Sketcher.Constraint("DistanceX", 39, 1, 39, 2, 3.04))
sketch1.addConstraint(Sketcher.Constraint("DistanceX", 45, 2, 45, 1, 3.04))
sketch1.addConstraint(Sketcher.Constraint("DistanceX", 55, 2, 55, 1, 3.04))
sketch1.addConstraint(Sketcher.Constraint("DistanceX", 67, 2, 67, 1, 3.04))
sketch1.addConstraint(Sketcher.Constraint("DistanceY", 0, 2, 0, 1, 324.18))
sketch1.addConstraint(Sketcher.Constraint("DistanceY", 21, 1, 21, 2, 324.18))
sketch1.addConstraint(Sketcher.Constraint("DistanceY", 38, 1, 38, 2, 8.04))
sketch1.addConstraint(Sketcher.Constraint("DistanceY", 44, 2, 44, 1, 8.04))
sketch1.addConstraint(Sketcher.Constraint("DistanceY", 56, 1, 56, 2, 8.04))
sketch1.addConstraint(Sketcher.Constraint("DistanceY", 68, 1, 68, 2, 8.04))
sketch1.addConstraint(Sketcher.Constraint("DistanceX", 5, 1, -1, 1, 4.5))
sketch1.addConstraint(Sketcher.Constraint("DistanceY", 6, 2, -1, 1, 443.5))
sketch1.addConstraint(Sketcher.Constraint("DistanceY", 3, 3, -1, 1, 388.59))
sketch1.addConstraint(Sketcher.Constraint("DistanceY", 18, 3, -1, 1, 388.59))
sketch1.addConstraint(Sketcher.Constraint("DistanceY", 36, 3, -1, 1, 486.25))
sketch1.addConstraint(Sketcher.Constraint("DistanceY", 11, 2, -1, 1, 491.25))
sketch1.addConstraint(Sketcher.Constraint("DistanceX", 38, 2, -1, 1, 1.52))
sketch1.addConstraint(Sketcher.Constraint("DistanceY", 38, 2, -1, 1, 384.57))
sketch1.addConstraint(Sketcher.Constraint("DistanceX", -1, 1, 44, 2, 54.52))
sketch1.addConstraint(Sketcher.Constraint("DistanceY", 44, 2, -1, 1, 392.61))
sketch1.addConstraint(Sketcher.Constraint("DistanceX", 55, 2, -1, 1, 1.52))
sketch1.addConstraint(Sketcher.Constraint("DistanceY", 55, 2, -1, 1, 170.11))
sketch1.addConstraint(Sketcher.Constraint("DistanceX", -1, 1, 67, 2, 51.48))
sketch1.addConstraint(Sketcher.Constraint("DistanceY", 67, 2, -1, 1, 170.11))
sketch1.addConstraint(Sketcher.Constraint("Radius", 3, 12.615039))
sketch1.addConstraint(Sketcher.Constraint("Radius", 18, 12.615039))
sketch1.addConstraint(Sketcher.Constraint("DistanceY", 34, 2, 34, 1, 23.285898))
sketch1.addConstraint(Sketcher.Constraint("DistanceY", 2, 2, 2, 1, 43.489821))
sketch1.addConstraint(Sketcher.Constraint("DistanceY", 4, 2, 4, 1, 31.50777))
sketch1.addConstraint(Sketcher.Constraint("DistanceY", 17, 1, 17, 2, 43.489821))
sketch1.addConstraint(Sketcher.Constraint("DistanceY", 35, 3, -1, 1, 472.285898))
sketch1.addConstraint(Sketcher.Constraint("DistanceY", -1, 1, 74, 3, 43.3671))
sketch1.addConstraint(Sketcher.Constraint("DistanceY", 29, 1, -1, 1, 445.464102))
sketch1.addConstraint(Sketcher.Constraint("DistanceY", 35, 1, -1, 1, 473.285898))
sketch1.addConstraint(Sketcher.Constraint("DistanceX", -1, 1, 53, 2, 44.0097))
sketch1.addConstraint(Sketcher.Constraint("DistanceX", -1, 1, 62, 2, 8.9903))
sketch1.addConstraint(Sketcher.Constraint("DistanceX", -1, 1, 72, 1, 3.938802))
sketch1.addConstraint(Sketcher.Constraint("Distance", 6, 23.767949))
sketch1.addConstraint(Sketcher.Constraint("Distance", 9, 34.488718))
sketch1.addConstraint(Sketcher.Constraint("Distance", 27, 20.900261))
sketch1.addConstraint(Sketcher.Constraint("Distance", 73, 37.375209))
sketch1.addConstraint(Sketcher.Constraint("DistanceX", 51, 2, 51, 1, 34.773056))
sketch1.addConstraint(Sketcher.Constraint("DistanceX", 66, 1, 66, 2, 34.773056))
sketch1.addConstraint(Sketcher.Constraint("DistanceX", 71, 2, 71, 1, 35.031656))
sketch1.addConstraint(Sketcher.Constraint("DistanceY", 11, 2, 11, 1, 2.696152))
sketch1.addConstraint(Sketcher.Constraint("DistanceY", 32, 2, 32, 1, 2.167096))
sketch1.addConstraint(Sketcher.Constraint("DistanceY", 49, 2, 49, 1, 351.773937))
sketch1.addConstraint(Sketcher.Constraint("DistanceY", 64, 1, 64, 2, 351.773937))
sketch1.addConstraint(Sketcher.Constraint("DistanceY", 5, 3, -1, 1, 429.017949))
sketch1.addConstraint(Sketcher.Constraint("DistanceX", 29, 3, -1, 1, 19.485572))
sketch1.addConstraint(Sketcher.Constraint("DistanceX", -1, 1, 72, 3, 6.938151))
sketch1.addConstraint(Sketcher.Constraint("DistanceX", -1, 1, 74, 3, 6.15967))
sketch1.addConstraint(Sketcher.Constraint("DistanceY", 8, 2, -1, 1, 457.185742))
sketch1.addConstraint(Sketcher.Constraint("DistanceX", 27, 2, -1, 1, 17.182181))
sketch1.addConstraint(Sketcher.Constraint("DistanceX", 29, 1, -1, 1, 20.485572))
sketch1.addConstraint(Sketcher.Constraint("DistanceY", 53, 2, -1, 1, 86.029321))
sketch1.addConstraint(Sketcher.Constraint("DistanceY", 62, 2, -1, 1, 358.970679))
sketch1.addConstraint(Sketcher.Constraint("DistanceX", -1, 1, 71, 2, 6.938151))
sketch1.addConstraint(Sketcher.Constraint("Distance", 8, 11.070882))
sketch1.addConstraint(Sketcher.Constraint("Distance", 23, 77.086707))
sketch1.addConstraint(Sketcher.Constraint("Distance", 28, 8.070882))
sketch1.addConstraint(Sketcher.Constraint("Distance", 30, 16.726497))
sketch1.addConstraint(Sketcher.Constraint("Distance", 53, 353.488427))
sketch1.addConstraint(Sketcher.Constraint("Distance", 62, 353.488427))
sketch1.addConstraint(Sketcher.Constraint("Distance", 75, 51.755832))
sketch1.addConstraint(Sketcher.Constraint("DistanceX", 7, 3, -1, 1, 23.583648))
sketch1.addConstraint(Sketcher.Constraint("DistanceY", 10, 3, -1, 1, 488.553848))
sketch1.addConstraint(Sketcher.Constraint("DistanceX", -1, 1, 52, 3, 11.226944))
sketch1.addConstraint(Sketcher.Constraint("DistanceX", -1, 1, 61, 3, 41.773056))
sketch1.addConstraint(Sketcher.Constraint("DistanceX", -1, 1, 76, 3, 41.969807))
sketch1.addConstraint(Sketcher.Constraint("DistanceX", 7, 2, -1, 1, 26.181724))
sketch1.addConstraint(Sketcher.Constraint("DistanceX", -1, 1, 74, 1, 8.325634))
sketch1.setExpression("Constraints[117]", "Params.sketch1_diameter")
sketch1.setExpression("Constraints[118]", "Params.sketch1_diameter2")
sketch1.setExpression("Constraints[119]", "Params.sketch1_diameter3")
sketch1.setExpression("Constraints[120]", "Params.sketch1_diameter4")
sketch1.setExpression("Constraints[121]", "Params.sketch1_diameter5")
pad1 = doc.addObject("PartDesign::Pad", "Pad")
body.addObject(pad1)
pad1.Profile = sketch1
pad1.setExpression("Length", "Params.pad1_length")

doc.recompute()
